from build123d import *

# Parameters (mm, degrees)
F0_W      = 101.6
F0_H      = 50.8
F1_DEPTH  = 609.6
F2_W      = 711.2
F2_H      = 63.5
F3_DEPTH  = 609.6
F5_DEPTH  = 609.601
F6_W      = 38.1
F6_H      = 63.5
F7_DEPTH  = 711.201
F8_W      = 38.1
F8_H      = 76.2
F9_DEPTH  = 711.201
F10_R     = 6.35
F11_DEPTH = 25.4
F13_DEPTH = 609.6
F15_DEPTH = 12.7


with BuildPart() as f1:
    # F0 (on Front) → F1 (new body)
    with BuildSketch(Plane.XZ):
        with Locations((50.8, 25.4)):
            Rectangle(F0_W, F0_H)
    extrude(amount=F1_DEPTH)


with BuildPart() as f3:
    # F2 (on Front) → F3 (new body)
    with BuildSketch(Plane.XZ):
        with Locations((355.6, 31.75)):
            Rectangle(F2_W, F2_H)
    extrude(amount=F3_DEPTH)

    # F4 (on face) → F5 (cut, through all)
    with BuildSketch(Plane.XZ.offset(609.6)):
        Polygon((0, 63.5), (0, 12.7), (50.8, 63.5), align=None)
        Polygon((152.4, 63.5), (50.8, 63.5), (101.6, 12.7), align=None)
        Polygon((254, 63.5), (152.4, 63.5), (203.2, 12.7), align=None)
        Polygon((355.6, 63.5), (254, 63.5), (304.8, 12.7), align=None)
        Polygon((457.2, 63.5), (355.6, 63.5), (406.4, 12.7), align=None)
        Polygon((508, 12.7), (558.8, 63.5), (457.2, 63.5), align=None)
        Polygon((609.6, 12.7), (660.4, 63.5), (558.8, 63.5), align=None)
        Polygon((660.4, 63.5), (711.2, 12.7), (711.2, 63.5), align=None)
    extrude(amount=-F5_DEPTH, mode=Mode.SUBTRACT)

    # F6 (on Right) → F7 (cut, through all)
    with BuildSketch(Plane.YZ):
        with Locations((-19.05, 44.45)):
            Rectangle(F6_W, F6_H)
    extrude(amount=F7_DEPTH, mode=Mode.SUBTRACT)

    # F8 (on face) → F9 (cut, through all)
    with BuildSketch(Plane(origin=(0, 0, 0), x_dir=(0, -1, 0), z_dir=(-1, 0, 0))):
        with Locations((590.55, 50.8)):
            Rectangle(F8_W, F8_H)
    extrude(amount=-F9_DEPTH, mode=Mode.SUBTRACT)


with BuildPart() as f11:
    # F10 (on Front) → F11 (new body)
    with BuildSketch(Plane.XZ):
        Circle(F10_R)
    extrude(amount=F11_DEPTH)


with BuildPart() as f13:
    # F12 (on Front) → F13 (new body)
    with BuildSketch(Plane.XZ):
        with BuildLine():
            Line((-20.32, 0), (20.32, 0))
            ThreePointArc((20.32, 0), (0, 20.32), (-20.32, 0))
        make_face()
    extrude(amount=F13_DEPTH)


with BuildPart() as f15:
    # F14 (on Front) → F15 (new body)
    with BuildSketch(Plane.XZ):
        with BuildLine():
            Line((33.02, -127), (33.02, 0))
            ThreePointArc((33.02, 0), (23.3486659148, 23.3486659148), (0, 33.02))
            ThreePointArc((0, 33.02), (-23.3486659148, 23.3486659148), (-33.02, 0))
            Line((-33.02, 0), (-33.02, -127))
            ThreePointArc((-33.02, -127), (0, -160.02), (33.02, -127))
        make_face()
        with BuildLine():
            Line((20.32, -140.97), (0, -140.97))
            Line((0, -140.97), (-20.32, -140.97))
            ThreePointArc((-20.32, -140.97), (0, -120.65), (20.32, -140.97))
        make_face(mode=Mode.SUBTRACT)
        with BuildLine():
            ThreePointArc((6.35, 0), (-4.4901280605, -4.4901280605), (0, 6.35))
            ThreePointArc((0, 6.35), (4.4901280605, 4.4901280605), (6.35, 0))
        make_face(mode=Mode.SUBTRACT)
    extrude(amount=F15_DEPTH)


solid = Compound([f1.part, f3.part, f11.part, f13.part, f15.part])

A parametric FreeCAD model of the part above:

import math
import FreeCAD as App
import Part
import Sketcher
from FreeCAD import Vector
Q = App.Units.Quantity

doc = App.newDocument("Part")
body = doc.addObject("PartDesign::Body", "Body")

sketch1 = doc.addObject("Sketcher::SketchObject", "Sketch")
body.addObject(sketch1)
sketch1.AttachmentSupport = (doc.XZ_Plane, [""])
sketch1.MapMode = "FlatFace"
sketch1.addGeometry(Part.LineSegment(Vector(0, 50.8, 0), Vector(0, 0, 0)), False)
sketch1.addGeometry(Part.LineSegment(Vector(0, 0, 0), Vector(101.6, 0, 0)), False)
sketch1.addGeometry(Part.LineSegment(Vector(101.6, 0, 0), Vector(101.6, 50.8, 0)), False)
sketch1.addGeometry(Part.LineSegment(Vector(101.6, 50.8, 0), Vector(0, 50.8, 0)), False)
sketch1.addConstraint(Sketcher.Constraint("Coincident", 0, 2, 1, 1))
sketch1.addConstraint(Sketcher.Constraint("Coincident", 1, 2, 2, 1))
sketch1.addConstraint(Sketcher.Constraint("Coincident", 2, 2, 3, 1))
sketch1.addConstraint(Sketcher.Constraint("Coincident", 3, 2, 0, 1))
sketch1.addConstraint(Sketcher.Constraint("Vertical", 0))
sketch1.addConstraint(Sketcher.Constraint("Horizontal", 1))
sketch1.addConstraint(Sketcher.Constraint("Vertical", 2))
sketch1.addConstraint(Sketcher.Constraint("Horizontal", 3))
sketch1.addConstraint(Sketcher.Constraint("Coincident", 0, 2, -1, 1))
sketch1.addConstraint(Sketcher.Constraint("DistanceX", 1, 1, 1, 2, Q("4 in")))
sketch1.addConstraint(Sketcher.Constraint("DistanceY", 0, 2, 0, 1, Q("2 in")))
pad1 = doc.addObject("PartDesign::Pad", "Pad")
body.addObject(pad1)
pad1.Profile = sketch1
pad1.Length = Q("24 in")
body2 = doc.addObject("PartDesign::Body", "Body001")

sketch2 = doc.addObject("Sketcher::SketchObject", "Sketch001")
body2.addObject(sketch2)
sketch2.AttachmentSupport = (doc.getObject("XZ_Plane001"), [""])
sketch2.MapMode = "FlatFace"
sketch2.addGeometry(Part.LineSegment(Vector(0, 63.5, 0), Vector(0, 0, 0)), False)
sketch2.addGeometry(Part.LineSegment(Vector(0, 0, 0), Vector(711.2, 0, 0)), False)
sketch2.addGeometry(Part.LineSegment(Vector(711.2, 0, 0), Vector(711.2, 63.5, 0)), False)
sketch2.addGeometry(Part.LineSegment(Vector(711.2, 63.5, 0), Vector(0, 63.5, 0)), False)
sketch2.addConstraint(Sketcher.Constraint("Coincident", 0, 2, 1, 1))
sketch2.addConstraint(Sketcher.Constraint("Coincident", 1, 2, 2, 1))
sketch2.addConstraint(Sketcher.Constraint("Coincident", 2, 2, 3, 1))
sketch2.addConstraint(Sketcher.Constraint("Coincident", 3, 2, 0, 1))
sketch2.addConstraint(Sketcher.Constraint("Vertical", 0))
sketch2.addConstraint(Sketcher.Constraint("Horizontal", 1))
sketch2.addConstraint(Sketcher.Constraint("Vertical", 2))
sketch2.addConstraint(Sketcher.Constraint("Horizontal", 3))
sketch2.addConstraint(Sketcher.Constraint("Coincident", 0, 2, -1, 1))
sketch2.addConstraint(Sketcher.Constraint("DistanceX", 1, 1, 1, 2, Q("28 in")))
sketch2.addConstraint(Sketcher.Constraint("DistanceY", 0, 2, 0, 1, Q("2.5 in")))
pad2 = doc.addObject("PartDesign::Pad", "Pad001")
body2.addObject(pad2)
pad2.Profile = sketch2
pad2.Length = Q("24 in")

sketch3 = doc.addObject("Sketcher::SketchObject", "Sketch002")
body2.addObject(sketch3)
sketch3.AttachmentSupport = (doc.getObject("XZ_Plane001"), [""])
sketch3.MapMode = "FlatFace"
sketch3.AttachmentOffset = App.Placement(Vector(0, 0, 24 * 25.4), App.Rotation())
sketch3.addGeometry(Part.LineSegment(Vector(0, 63.5, 0), Vector(0, 12.7, 0)), False)
sketch3.addGeometry(Part.LineSegment(Vector(0, 12.7, 0), Vector(50.8, 63.5, 0)), False)
sketch3.addGeometry(Part.LineSegment(Vector(50.8, 63.5, 0), Vector(0, 63.5, 0)), False)
sketch3.addGeometry(Part.LineSegment(Vector(152.4, 63.5, 0), Vector(50.8, 63.5, 0)), False)
sketch3.addGeometry(Part.LineSegment(Vector(50.8, 63.5, 0), Vector(101.6, 12.7, 0)), False)
sketch3.addGeometry(Part.LineSegment(Vector(101.6, 12.7, 0), Vector(152.4, 63.5, 0)), False)
sketch3.addGeometry(Part.LineSegment(Vector(254, 63.5, 0), Vector(152.4, 63.5, 0)), False)
sketch3.addGeometry(Part.LineSegment(Vector(152.4, 63.5, 0), Vector(203.2, 12.7, 0)), False)
sketch3.addGeometry(Part.LineSegment(Vector(203.2, 12.7, 0), Vector(254, 63.5, 0)), False)
sketch3.addGeometry(Part.LineSegment(Vector(355.6, 63.5, 0), Vector(254, 63.5, 0)), False)
sketch3.addGeometry(Part.LineSegment(Vector(254, 63.5, 0), Vector(304.8, 12.7, 0)), False)
sketch3.addGeometry(Part.LineSegment(Vector(304.8, 12.7, 0), Vector(355.6, 63.5, 0)), False)
sketch3.addGeometry(Part.LineSegment(Vector(457.2, 63.5, 0), Vector(355.6, 63.5, 0)), False)
sketch3.addGeometry(Part.LineSegment(Vector(355.6, 63.5, 0), Vector(406.4, 12.7, 0)), False)
sketch3.addGeometry(Part.LineSegment(Vector(406.4, 12.7, 0), Vector(457.2, 63.5, 0)), False)
sketch3.addGeometry(Part.LineSegment(Vector(508, 12.7, 0), Vector(558.8, 63.5, 0)), False)
sketch3.addGeometry(Part.LineSegment(Vector(558.8, 63.5, 0), Vector(457.2, 63.5, 0)), False)
sketch3.addGeometry(Part.LineSegment(Vector(457.2, 63.5, 0), Vector(508, 12.7, 0)), False)
sketch3.addGeometry(Part.LineSegment(Vector(609.6, 12.7, 0), Vector(660.4, 63.5, 0)), False)
sketch3.addGeometry(Part.LineSegment(Vector(660.4, 63.5, 0), Vector(558.8, 63.5, 0)), False)
sketch3.addGeometry(Part.LineSegment(Vector(558.8, 63.5, 0), Vector(609.6, 12.7, 0)), False)
sketch3.addGeometry(Part.LineSegment(Vector(660.4, 63.5, 0), Vector(711.2, 12.7, 0)), False)
sketch3.addGeometry(Part.LineSegment(Vector(711.2, 12.7, 0), Vector(711.2, 63.5, 0)), False)
sketch3.addGeometry(Part.LineSegment(Vector(711.2, 63.5, 0), Vector(660.4, 63.5, 0)), False)
sketch3.addConstraint(Sketcher.Constraint("Coincident", 0, 2, 1, 1))
sketch3.addConstraint(Sketcher.Constraint("Coincident", 1, 2, 2, 1))
sketch3.addConstraint(Sketcher.Constraint("Coincident", 2, 2, 0, 1))
sketch3.addConstraint(Sketcher.Constraint("Coincident", 3, 2, 4, 1))
sketch3.addConstraint(Sketcher.Constraint("Coincident", 4, 2, 5, 1))
sketch3.addConstraint(Sketcher.Constraint("Coincident", 5, 2, 3, 1))
sketch3.addConstraint(Sketcher.Constraint("Coincident", 6, 2, 7, 1))
sketch3.addConstraint(Sketcher.Constraint("Coincident", 7, 2, 8, 1))
sketch3.addConstraint(Sketcher.Constraint("Coincident", 8, 2, 6, 1))
sketch3.addConstraint(Sketcher.Constraint("Coincident", 9, 2, 10, 1))
sketch3.addConstraint(Sketcher.Constraint("Coincident", 10, 2, 11, 1))
sketch3.addConstraint(Sketcher.Constraint("Coincident", 11, 2, 9, 1))
sketch3.addConstraint(Sketcher.Constraint("Coincident", 12, 2, 13, 1))
sketch3.addConstraint(Sketcher.Constraint("Coincident", 13, 2, 14, 1))
sketch3.addConstraint(Sketcher.Constraint("Coincident", 14, 2, 12, 1))
sketch3.addConstraint(Sketcher.Constraint("Coincident", 15, 2, 16, 1))
sketch3.addConstraint(Sketcher.Constraint("Coincident", 16, 2, 17, 1))
sketch3.addConstraint(Sketcher.Constraint("Coincident", 17, 2, 15, 1))
sketch3.addConstraint(Sketcher.Constraint("Coincident", 18, 2, 19, 1))
sketch3.addConstraint(Sketcher.Constraint("Coincident", 19, 2, 20, 1))
sketch3.addConstraint(Sketcher.Constraint("Coincident", 20, 2, 18, 1))
sketch3.addConstraint(Sketcher.Constraint("Coincident", 21, 2, 22, 1))
sketch3.addConstraint(Sketcher.Constraint("Coincident", 22, 2, 23, 1))
sketch3.addConstraint(Sketcher.Constraint("Coincident", 23, 2, 21, 1))
sketch3.addConstraint(Sketcher.Constraint("Vertical", 0))
sketch3.addConstraint(Sketcher.Constraint("Horizontal", 2))
sketch3.addConstraint(Sketcher.Constraint("Horizontal", 3))
sketch3.addConstraint(Sketcher.Constraint("Horizontal", 6))
sketch3.addConstraint(Sketcher.Constraint("Horizontal", 9))
sketch3.addConstraint(Sketcher.Constraint("Horizontal", 12))
sketch3.addConstraint(Sketcher.Constraint("Horizontal", 16))
sketch3.addConstraint(Sketcher.Constraint("Horizontal", 19))
sketch3.addConstraint(Sketcher.Constraint("Vertical", 22))
sketch3.addConstraint(Sketcher.Constraint("Horizontal", 23))
sketch3.addConstraint(Sketcher.Constraint("Coincident", 3, 2, 1, 2))
sketch3.addConstraint(Sketcher.Constraint("Coincident", 6, 2, 5, 2))
sketch3.addConstraint(Sketcher.Constraint("Coincident", 9, 2, 8, 2))
sketch3.addConstraint(Sketcher.Constraint("Coincident", 12, 2, 11, 2))
sketch3.addConstraint(Sketcher.Constraint("Coincident", 16, 2, 14, 2))
sketch3.addConstraint(Sketcher.Constraint("Coincident", 19, 2, 15, 2))
sketch3.addConstraint(Sketcher.Constraint("Coincident", 23, 2, 18, 2))
sketch3.addConstraint(Sketcher.Constraint("PointOnObject", 0, 2, -2))
sketch3.addConstraint(Sketcher.Constraint("Perpendicular", 1, 4))
sketch3.addConstraint(Sketcher.Constraint("Perpendicular", 4, 5))
sketch3.addConstraint(Sketcher.Constraint("Perpendicular", 5, 7))
sketch3.addConstraint(Sketcher.Constraint("Perpendicular", 7, 8))
sketch3.addConstraint(Sketcher.Constraint("Perpendicular", 8, 10))
sketch3.addConstraint(Sketcher.Constraint("Perpendicular", 10, 11))
sketch3.addConstraint(Sketcher.Constraint("Perpendicular", 11, 13))
sketch3.addConstraint(Sketcher.Constraint("Perpendicular", 13, 14))
sketch3.addConstraint(Sketcher.Constraint("Parallel", 14, 15))
sketch3.addConstraint(Sketcher.Constraint("Perpendicular", 15, 17))
sketch3.addConstraint(Sketcher.Constraint("Perpendicular", 17, 18))
sketch3.addConstraint(Sketcher.Constraint("Perpendicular", 18, 20))
sketch3.addConstraint(Sketcher.Constraint("Parallel", 20, 21))
sketch3.addConstraint(Sketcher.Constraint("Horizontal", 0, 2, 4, 2))
sketch3.addConstraint(Sketcher.Constraint("Horizontal", 4, 2, 7, 2))
sketch3.addConstraint(Sketcher.Constraint("Horizontal", 7, 2, 10, 2))
sketch3.addConstraint(Sketcher.Constraint("Horizontal", 10, 2, 13, 2))
sketch3.addConstraint(Sketcher.Constraint("Horizontal", 13, 2, 17, 2))
sketch3.addConstraint(Sketcher.Constraint("Horizontal", 17, 2, 20, 2))
sketch3.addConstraint(Sketcher.Constraint("Horizontal", 20, 2, 21, 2))
sketch3.addConstraint(Sketcher.Constraint("Equal", 2, 23))
sketch3.addConstraint(Sketcher.Constraint("DistanceX", 2, 2, 2, 1, Q("2 in")))
sketch3.addConstraint(Sketcher.Constraint("DistanceY", -1, 1, 0, 2, Q("0.5 in")))
pocket1 = doc.addObject("PartDesign::Pocket", "Pocket")
body2.addObject(pocket1)
pocket1.Profile = sketch3
pocket1.Type = "ThroughAll"

sketch4 = doc.addObject("Sketcher::SketchObject", "Sketch003")
body2.addObject(sketch4)
sketch4.AttachmentSupport = (doc.getObject("YZ_Plane001"), [""])
sketch4.MapMode = "FlatFace"
sketch4.addGeometry(Part.LineSegment(Vector(-38.1, 76.2, 0), Vector(-38.1, 12.7, 0)), False)
sketch4.addGeometry(Part.LineSegment(Vector(-38.1, 12.7, 0), Vector(0, 12.7, 0)), False)
sketch4.addGeometry(Part.LineSegment(Vector(0, 12.7, 0), Vector(0, 76.2, 0)), False)
sketch4.addGeometry(Part.LineSegment(Vector(0, 76.2, 0), Vector(-38.1, 76.2, 0)), False)
sketch4.addConstraint(Sketcher.Constraint("Coincident", 0, 2, 1, 1))
sketch4.addConstraint(Sketcher.Constraint("Coincident", 1, 2, 2, 1))
sketch4.addConstraint(Sketcher.Constraint("Coincident", 2, 2, 3, 1))
sketch4.addConstraint(Sketcher.Constraint("Coincident", 3, 2, 0, 1))
sketch4.addConstraint(Sketcher.Constraint("Vertical", 0))
sketch4.addConstraint(Sketcher.Constraint("Horizontal", 1))
sketch4.addConstraint(Sketcher.Constraint("Vertical", 2))
sketch4.addConstraint(Sketcher.Constraint("Horizontal", 3))
sketch4.addConstraint(Sketcher.Constraint("PointOnObject", 1, 2, -2))
sketch4.addConstraint(Sketcher.Constraint("DistanceX", 1, 1, 1, 2, Q("1.5 in")))
sketch4.addConstraint(Sketcher.Constraint("DistanceY", 0, 2, 0, 1, Q("2.5 in")))
sketch4.addConstraint(Sketcher.Constraint("DistanceY", -1, 1, 2, 2, Q("3 in")))
pocket2 = doc.addObject("PartDesign::Pocket", "Pocket001")
body2.addObject(pocket2)
pocket2.Profile = sketch4
pocket2.Type = "ThroughAll"
pocket2.Reversed = True

sketch5 = doc.addObject("Sketcher::SketchObject", "Sketch004")
body2.addObject(sketch5)
sketch5.AttachmentSupport = (doc.getObject("YZ_Plane001"), [""])
sketch5.MapMode = "FlatFace"
sketch5.addGeometry(Part.LineSegment(Vector(-571.5, 88.9, 0), Vector(-571.5, 12.7, 0)), False)
sketch5.addGeometry(Part.LineSegment(Vector(-571.5, 12.7, 0), Vector(-609.6, 12.7, 0)), False)
sketch5.addGeometry(Part.LineSegment(Vector(-609.6, 12.7, 0), Vector(-609.6, 88.9, 0)), False)
sketch5.addGeometry(Part.LineSegment(Vector(-609.6, 88.9, 0), Vector(-571.5, 88.9, 0)), False)
sketch5.addConstraint(Sketcher.Constraint("Coincident", 0, 2, 1, 1))
sketch5.addConstraint(Sketcher.Constraint("Coincident", 1, 2, 2, 1))
sketch5.addConstraint(Sketcher.Constraint("Coincident", 2, 2, 3, 1))
sketch5.addConstraint(Sketcher.Constraint("Coincident", 3, 2, 0, 1))
sketch5.addConstraint(Sketcher.Constraint("Vertical", 0))
sketch5.addConstraint(Sketcher.Constraint("Horizontal", 1))
sketch5.addConstraint(Sketcher.Constraint("Vertical", 2))
sketch5.addConstraint(Sketcher.Constraint("Horizontal", 3))
sketch5.addConstraint(Sketcher.Constraint("DistanceY", 0, 2, 0, 1, Q("3 in")))
sketch5.addConstraint(Sketcher.Constraint("DistanceX", 1, 2, 1, 1, Q("1.5 in")))
sketch5.addConstraint(Sketcher.Constraint("DistanceX", 1, 2, -1, 1, Q("24 in")))
sketch5.addConstraint(Sketcher.Constraint("DistanceY", -1, 1, 0, 2, Q("0.5 in")))
pocket3 = doc.addObject("PartDesign::Pocket", "Pocket002")
body2.addObject(pocket3)
pocket3.Profile = sketch5
pocket3.Type = "ThroughAll"
pocket3.Reversed = True
body3 = doc.addObject("PartDesign::Body", "Body002")

sketch6 = doc.addObject("Sketcher::SketchObject", "Sketch005")
body3.addObject(sketch6)
sketch6.AttachmentSupport = (doc.getObject("XZ_Plane002"), [""])
sketch6.MapMode = "FlatFace"
sketch6.addGeometry(Part.Circle(Vector(0, 0, 0), Vector(0, 0, 1), 6.35), False)
sketch6.addConstraint(Sketcher.Constraint("Coincident", 0, 3, -1, 1))
sketch6.addConstraint(Sketcher.Constraint("Diameter", 0, Q("0.5 in")))
pad3 = doc.addObject("PartDesign::Pad", "Pad002")
body3.addObject(pad3)
pad3.Profile = sketch6
pad3.Length = Q("1 in")
body4 = doc.addObject("PartDesign::Body", "Body003")

sketch7 = doc.addObject("Sketcher::SketchObject", "Sketch006")
body4.addObject(sketch7)
sketch7.AttachmentSupport = (doc.getObject("XZ_Plane003"), [""])
sketch7.MapMode = "FlatFace"
sketch7.addGeometry(Part.LineSegment(Vector(-20.32, 0, 0), Vector(20.32, 0, 0)), False)
sketch7.addGeometry(Part.ArcOfCircle(Part.Circle(Vector(0, 0, 0), Vector(0, 0, 1), 20.32), math.radians(0), math.radians(180)), False)
sketch7.addConstraint(Sketcher.Constraint("Coincident", 0, 1, 1, 2))
sketch7.addConstraint(Sketcher.Constraint("Coincident", 1, 1, 0, 2))
sketch7.addConstraint(Sketcher.Constraint("Horizontal", 0))
sketch7.addConstraint(Sketcher.Constraint("Coincident", 1, 3, -1, 1))
sketch7.addConstraint(Sketcher.Constraint("PointOnObject", 0, 1, -1))
sketch7.addConstraint(Sketcher.Constraint("Radius", 1, Q("0.8 in")))
pad4 = doc.addObject("PartDesign::Pad", "Pad003")
body4.addObject(pad4)
pad4.Profile = sketch7
pad4.Length = Q("24 in")
body5 = doc.addObject("PartDesign::Body", "Body004")

sketch8 = doc.addObject("Sketcher::SketchObject", "Sketch007")
body5.addObject(sketch8)
sketch8.AttachmentSupport = (doc.getObject("XZ_Plane004"), [""])
sketch8.MapMode = "FlatFace"
sketch8.addGeometry(Part.LineSegment(Vector(33.02, -127, 0), Vector(33.02, 0, 0)), False)
sketch8.addGeometry(Part.ArcOfCircle(Part.Circle(Vector(0, 0, 0), Vector(0, 0, 1), 33.02), math.radians(0), math.radians(90)), False)
sketch8.addGeometry(Part.ArcOfCircle(Part.Circle(Vector(0, 0, 0), Vector(0, 0, 1), 33.02), math.radians(90), math.radians(180)), False)
sketch8.addGeometry(Part.LineSegment(Vector(-33.02, 0, 0), Vector(-33.02, -127, 0)), False)
sketch8.addGeometry(Part.ArcOfCircle(Part.Circle(Vector(0, -127, 0), Vector(0, 0, 1), 33.02), math.radians(180), math.radians(360)), False)
sketch8.addGeometry(Part.ArcOfCircle(Part.Circle(Vector(0, -140.97, 0), Vector(0, 0, 1), 20.32), math.radians(0), math.radians(180)), False)
sketch8.addGeometry(Part.LineSegment(Vector(20.32, -140.97, 0), Vector(-20.32, -140.97, 0)), False)
sketch8.addGeometry(Part.ArcOfCircle(Part.Circle(Vector(0, 0, 0), Vector(0, 0, 1), 6.35), math.radians(0), math.radians(90)), False)
sketch8.addGeometry(Part.ArcOfCircle(Part.Circle(Vector(0, 0, 0), Vector(0, 0, 1), 6.35), math.radians(90), math.radians(360)), False)
sketch8.addConstraint(Sketcher.Constraint("Tangent", 0, 2, 1, 1))
sketch8.addConstraint(Sketcher.Constraint("Tangent", 1, 2, 2, 1))
sketch8.addConstraint(Sketcher.Constraint("Tangent", 2, 2, 3, 1))
sketch8.addConstraint(Sketcher.Constraint("Tangent", 3, 2, 4, 1))
sketch8.addConstraint(Sketcher.Constraint("Tangent", 4, 2, 0, 1))
sketch8.addConstraint(Sketcher.Constraint("Coincident", 5, 1, 6, 1))
sketch8.addConstraint(Sketcher.Constraint("Coincident", 6, 2, 5, 2))
sketch8.addConstraint(Sketcher.Constraint("Tangent", 7, 1, 8, 2))
sketch8.addConstraint(Sketcher.Constraint("Coincident", 8, 1, 7, 2))
sketch8.addConstraint(Sketcher.Constraint("Vertical", 0))
sketch8.addConstraint(Sketcher.Constraint("Vertical", 3))
sketch8.addConstraint(Sketcher.Constraint("Horizontal", 6))
sketch8.addConstraint(Sketcher.Constraint("Coincident", 1, 3, -1, 1))
sketch8.addConstraint(Sketcher.Constraint("Coincident", 7, 3, -1, 1))
sketch8.addConstraint(Sketcher.Constraint("Equal", 1, 2))
sketch8.addConstraint(Sketcher.Constraint("PointOnObject", 5, 3, -2))
sketch8.addConstraint(Sketcher.Constraint("PointOnObject", 1, 2, -2))
sketch8.addConstraint(Sketcher.Constraint("PointOnObject", 7, 1, -1))
sketch8.addConstraint(Sketcher.Constraint("PointOnObject", 8, 1, -2))
sketch8.addConstraint(Sketcher.Constraint("Radius", 1, Q("1.3 in")))
sketch8.addConstraint(Sketcher.Constraint("Radius", 5, Q("0.8 in")))
sketch8.addConstraint(Sketcher.Constraint("DistanceY", 0, 1, 0, 2, Q("5 in")))
sketch8.addConstraint(Sketcher.Constraint("Radius", 7, Q("0.25 in")))
sketch8.addConstraint(Sketcher.Constraint("DistanceY", 5, 3, -1, 1, Q("5.55 in")))
sketch8.addConstraint(Sketcher.Constraint("DistanceY", 5, 1, -1, 1, Q("5.55 in")))
pad5 = doc.addObject("PartDesign::Pad", "Pad004")
body5.addObject(pad5)
pad5.Profile = sketch8
pad5.Length = Q("0.5 in")

doc.recompute()
